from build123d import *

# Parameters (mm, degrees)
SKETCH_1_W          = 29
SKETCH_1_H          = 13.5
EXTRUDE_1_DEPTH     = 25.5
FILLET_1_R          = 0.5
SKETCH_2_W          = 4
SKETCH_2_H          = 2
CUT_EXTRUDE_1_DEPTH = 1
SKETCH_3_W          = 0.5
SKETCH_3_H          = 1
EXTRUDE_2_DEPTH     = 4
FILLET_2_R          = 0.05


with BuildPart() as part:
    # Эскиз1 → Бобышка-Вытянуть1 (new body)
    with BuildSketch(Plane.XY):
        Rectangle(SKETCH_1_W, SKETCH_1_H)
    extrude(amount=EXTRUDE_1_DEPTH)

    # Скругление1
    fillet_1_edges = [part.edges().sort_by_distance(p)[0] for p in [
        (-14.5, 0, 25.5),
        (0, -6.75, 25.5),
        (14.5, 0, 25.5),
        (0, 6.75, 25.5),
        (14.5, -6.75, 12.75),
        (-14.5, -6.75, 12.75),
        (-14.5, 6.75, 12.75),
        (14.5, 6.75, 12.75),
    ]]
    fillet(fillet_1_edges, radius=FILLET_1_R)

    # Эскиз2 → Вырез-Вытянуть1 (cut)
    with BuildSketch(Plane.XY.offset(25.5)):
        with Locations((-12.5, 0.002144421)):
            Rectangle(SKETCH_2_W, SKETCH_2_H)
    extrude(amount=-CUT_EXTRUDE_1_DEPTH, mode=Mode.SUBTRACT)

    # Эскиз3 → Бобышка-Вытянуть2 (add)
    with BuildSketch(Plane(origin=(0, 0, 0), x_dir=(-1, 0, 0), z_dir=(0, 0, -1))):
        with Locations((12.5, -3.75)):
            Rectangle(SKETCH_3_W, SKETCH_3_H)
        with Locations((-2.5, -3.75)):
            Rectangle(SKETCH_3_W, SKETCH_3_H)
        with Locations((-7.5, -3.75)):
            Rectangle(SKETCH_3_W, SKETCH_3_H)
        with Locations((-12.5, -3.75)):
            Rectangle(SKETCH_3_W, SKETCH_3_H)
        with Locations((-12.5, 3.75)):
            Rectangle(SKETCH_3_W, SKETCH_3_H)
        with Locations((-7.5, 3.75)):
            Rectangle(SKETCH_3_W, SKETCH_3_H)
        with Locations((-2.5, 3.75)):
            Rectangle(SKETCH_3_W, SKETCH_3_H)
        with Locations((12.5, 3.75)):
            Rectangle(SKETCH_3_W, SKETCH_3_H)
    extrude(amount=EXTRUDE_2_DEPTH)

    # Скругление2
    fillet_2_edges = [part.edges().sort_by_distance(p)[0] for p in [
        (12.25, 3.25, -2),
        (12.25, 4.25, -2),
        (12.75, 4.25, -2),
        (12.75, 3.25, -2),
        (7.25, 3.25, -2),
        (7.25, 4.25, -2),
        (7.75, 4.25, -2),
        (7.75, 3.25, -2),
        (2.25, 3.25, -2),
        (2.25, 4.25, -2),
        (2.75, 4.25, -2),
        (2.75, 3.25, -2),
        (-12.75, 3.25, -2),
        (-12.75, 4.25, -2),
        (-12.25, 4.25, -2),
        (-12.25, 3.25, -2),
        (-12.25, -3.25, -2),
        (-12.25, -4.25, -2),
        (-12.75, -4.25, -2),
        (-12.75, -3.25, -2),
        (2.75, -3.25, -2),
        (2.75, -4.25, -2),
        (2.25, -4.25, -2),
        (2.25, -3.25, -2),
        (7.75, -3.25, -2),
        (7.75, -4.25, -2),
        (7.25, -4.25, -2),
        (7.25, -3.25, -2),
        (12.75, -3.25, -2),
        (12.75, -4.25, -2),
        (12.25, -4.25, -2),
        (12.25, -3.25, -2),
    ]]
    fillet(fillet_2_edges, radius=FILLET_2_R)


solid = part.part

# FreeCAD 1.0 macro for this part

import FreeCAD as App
import Part
import Sketcher

V = App.Vector
Q = App.Units.Quantity


def edges_at(feature, points):
    """Names of the edges that pass closest to the given points."""
    edges = feature.Shape.Edges
    near = lambda p: min(range(len(edges)), key=lambda i: edges[i].distToShape(Part.Vertex(*p))[0])
    return sorted({f"Edge{near(p) + 1}" for p in points})

doc = App.newDocument("Part")
body = doc.addObject("PartDesign::Body", "Body")

# Sketch on XY plane
sketch1 = doc.addObject("Sketcher::SketchObject", "Sketch")
body.addObject(sketch1)
sketch1.AttachmentSupport = (doc.XY_Plane, [""])
sketch1.MapMode = "FlatFace"
sketch1.addGeometry([
    Part.LineSegment(V(-14, 7, 0), V(-14, -7, 0)),
    Part.LineSegment(V(-14, -7, 0), V(14, -7, 0)),
    Part.LineSegment(V(14, -7, 0), V(14, 7, 0)),
    Part.LineSegment(V(14, 7, 0), V(-14, 7, 0)),
], False)
sketch1.addConstraint([
    Sketcher.Constraint("Coincident", 0, 2, 1, 1),
    Sketcher.Constraint("Coincident", 1, 2, 2, 1),
    Sketcher.Constraint("Coincident", 2, 2, 3, 1),
    Sketcher.Constraint("Coincident", 3, 2, 0, 1),
    Sketcher.Constraint("Vertical", 0),
    Sketcher.Constraint("Horizontal", 1),
    Sketcher.Constraint("Vertical", 2),
    Sketcher.Constraint("Horizontal", 3),
    Sketcher.Constraint("Symmetric", 0, 2, 2, 2, -1, 1),
    Sketcher.Constraint("DistanceX", 1, 1, 1, 2, Q("29 mm")),
    Sketcher.Constraint("DistanceY", 0, 2, 0, 1, Q("13.5 mm")),
])
pad1 = doc.addObject("PartDesign::Pad", "Pad")
body.addObject(pad1)
pad1.Profile = sketch1
pad1.Length = 25.5
doc.recompute()

fillet = doc.addObject("PartDesign::Fillet", "Fillet")
body.addObject(fillet)
fillet.Base = (pad1, edges_at(pad1, [
    (-14.5, 0, 25.5),
    (0, -6.75, 25.5),
    (14.5, 0, 25.5),
    (0, 6.75, 25.5),
    (14.5, -6.75, 12.75),
    (-14.5, -6.75, 12.75),
    (-14.5, 6.75, 12.75),
    (14.5, 6.75, 12.75),
]))
fillet.Radius = 0.5

# Sketch on XY plane
sketch2 = doc.addObject("Sketcher::SketchObject", "Sketch001")
body.addObject(sketch2)
sketch2.AttachmentSupport = (doc.XY_Plane, [""])
sketch2.MapMode = "FlatFace"
sketch2.AttachmentOffset = App.Placement(V(0, 0, 25.5), App.Rotation())
sketch2.addGeometry([
    Part.LineSegment(V(-14.5, 1, 0), V(-14.5, -1, 0)),
    Part.LineSegment(V(-14.5, -1, 0), V(-10.5, -1, 0)),
    Part.LineSegment(V(-10.5, -1, 0), V(-10.5, 1, 0)),
    Part.LineSegment(V(-10.5, 1, 0), V(-14.5, 1, 0)),
], False)
sketch2.addConstraint([
    Sketcher.Constraint("Coincident", 0, 2, 1, 1),
    Sketcher.Constraint("Coincident", 1, 2, 2, 1),
    Sketcher.Constraint("Coincident", 2, 2, 3, 1),
    Sketcher.Constraint("Coincident", 3, 2, 0, 1),
    Sketcher.Constraint("Vertical", 0),
    Sketcher.Constraint("Horizontal", 1),
    Sketcher.Constraint("Vertical", 2),
    Sketcher.Constraint("Horizontal", 3),
    Sketcher.Constraint("DistanceX", 1, 1, 1, 2, Q("4 mm")),
    Sketcher.Constraint("DistanceY", 0, 2, 0, 1, Q("2 mm")),
    Sketcher.Constraint("DistanceX", 0, 2, -1, 1, Q("14.5 mm")),
    Sketcher.Constraint("DistanceY", 0, 2, -1, 1, Q("0.997856 mm")),
])
pocket1 = doc.addObject("PartDesign::Pocket", "Pocket")
body.addObject(pocket1)
pocket1.Profile = sketch2
pocket1.Length = 1

# Sketch on XY plane
sketch3 = doc.addObject("Sketcher::SketchObject", "Sketch002")
body.addObject(sketch3)
sketch3.AttachmentSupport = (doc.XY_Plane, [""])
sketch3.MapMode = "FlatFace"
sketch3.addGeometry([
    Part.LineSegment(V(-12.2, -3.2, 0), V(-12.2, -4.2, 0)),  # 0
    Part.LineSegment(V(-12.2, -4.2, 0), V(-12.8, -4.2, 0)),  # 1
    Part.LineSegment(V(-12.8, -4.2, 0), V(-12.8, -3.2, 0)),  # 2
    Part.LineSegment(V(-12.8, -3.2, 0), V(-12.2, -3.2, 0)),  # 3
    Part.LineSegment(V(2.8, -3.2, 0), V(2.8, -4.2, 0)),  # 4
    Part.LineSegment(V(2.8, -4.2, 0), V(2.2, -4.2, 0)),  # 5
    Part.LineSegment(V(2.2, -4.2, 0), V(2.2, -3.2, 0)),  # 6
    Part.LineSegment(V(2.2, -3.2, 0), V(2.8, -3.2, 0)),  # 7
    Part.LineSegment(V(7.8, -3.2, 0), V(7.8, -4.2, 0)),  # 8
    Part.LineSegment(V(7.8, -4.2, 0), V(7.2, -4.2, 0)),  # 9
    Part.LineSegment(V(7.2, -4.2, 0), V(7.2, -3.2, 0)),  # 10
    Part.LineSegment(V(7.2, -3.2, 0), V(7.8, -3.2, 0)),  # 11
    Part.LineSegment(V(12.8, -3.2, 0), V(12.8, -4.2, 0)),  # 12
    Part.LineSegment(V(12.8, -4.2, 0), V(12.2, -4.2, 0)),  # 13
    Part.LineSegment(V(12.2, -4.2, 0), V(12.2, -3.2, 0)),  # 14
    Part.LineSegment(V(12.2, -3.2, 0), V(12.8, -3.2, 0)),  # 15
    Part.LineSegment(V(12.8, 4.2, 0), V(12.8, 3.2, 0)),  # 16
    Part.LineSegment(V(12.8, 3.2, 0), V(12.2, 3.2, 0)),  # 17
    Part.LineSegment(V(12.2, 3.2, 0), V(12.2, 4.2, 0)),  # 18
    Part.LineSegment(V(12.2, 4.2, 0), V(12.8, 4.2, 0)),  # 19
    Part.LineSegment(V(7.8, 4.2, 0), V(7.8, 3.2, 0)),  # 20
    Part.LineSegment(V(7.8, 3.2, 0), V(7.2, 3.2, 0)),  # 21
    Part.LineSegment(V(7.2, 3.2, 0), V(7.2, 4.2, 0)),  # 22
    Part.LineSegment(V(7.2, 4.2, 0), V(7.8, 4.2, 0)),  # 23
    Part.LineSegment(V(2.8, 4.2, 0), V(2.8, 3.2, 0)),  # 24
    Part.LineSegment(V(2.8, 3.2, 0), V(2.2, 3.2, 0)),  # 25
    Part.LineSegment(V(2.2, 3.2, 0), V(2.2, 4.2, 0)),  # 26
    Part.LineSegment(V(2.2, 4.2, 0), V(2.8, 4.2, 0)),  # 27
    Part.LineSegment(V(-12.2, 4.2, 0), V(-12.2, 3.2, 0)),  # 28
    Part.LineSegment(V(-12.2, 3.2, 0), V(-12.8, 3.2, 0)),  # 29
    Part.LineSegment(V(-12.8, 3.2, 0), V(-12.8, 4.2, 0)),  # 30
    Part.LineSegment(V(-12.8, 4.2, 0), V(-12.2, 4.2, 0)),  # 31
], False)
sketch3.addConstraint([
    Sketcher.Constraint("Coincident", 0, 2, 1, 1),
    Sketcher.Constraint("Coincident", 1, 2, 2, 1),
    Sketcher.Constraint("Coincident", 2, 2, 3, 1),
    Sketcher.Constraint("Coincident", 3, 2, 0, 1),
    Sketcher.Constraint("Coincident", 4, 2, 5, 1),
    Sketcher.Constraint("Coincident", 5, 2, 6, 1),
    Sketcher.Constraint("Coincident", 6, 2, 7, 1),
    Sketcher.Constraint("Coincident", 7, 2, 4, 1),
    Sketcher.Constraint("Coincident", 8, 2, 9, 1),
    Sketcher.Constraint("Coincident", 9, 2, 10, 1),
    Sketcher.Constraint("Coincident", 10, 2, 11, 1),
    Sketcher.Constraint("Coincident", 11, 2, 8, 1),
    Sketcher.Constraint("Coincident", 12, 2, 13, 1),
    Sketcher.Constraint("Coincident", 13, 2, 14, 1),
    Sketcher.Constraint("Coincident", 14, 2, 15, 1),
    Sketcher.Constraint("Coincident", 15, 2, 12, 1),
    Sketcher.Constraint("Coincident", 16, 2, 17, 1),
    Sketcher.Constraint("Coincident", 17, 2, 18, 1),
    Sketcher.Constraint("Coincident", 18, 2, 19, 1),
    Sketcher.Constraint("Coincident", 19, 2, 16, 1),
    Sketcher.Constraint("Coincident", 20, 2, 21, 1),
    Sketcher.Constraint("Coincident", 21, 2, 22, 1),
    Sketcher.Constraint("Coincident", 22, 2, 23, 1),
    Sketcher.Constraint("Coincident", 23, 2, 20, 1),
    Sketcher.Constraint("Coincident", 24, 2, 25, 1),
    Sketcher.Constraint("Coincident", 25, 2, 26, 1),
    Sketcher.Constraint("Coincident", 26, 2, 27, 1),
    Sketcher.Constraint("Coincident", 27, 2, 24, 1),
    Sketcher.Constraint("Coincident", 28, 2, 29, 1),
    Sketcher.Constraint("Coincident", 29, 2, 30, 1),
    Sketcher.Constraint("Coincident", 30, 2, 31, 1),
    Sketcher.Constraint("Coincident", 31, 2, 28, 1),
    Sketcher.Constraint("Vertical", 0),
    Sketcher.Constraint("Horizontal", 1),
    Sketcher.Constraint("Vertical", 2),
    Sketcher.Constraint("Horizontal", 3),
    Sketcher.Constraint("Vertical", 4),
    Sketcher.Constraint("Horizontal", 5),
    Sketcher.Constraint("Vertical", 6),
    Sketcher.Constraint("Horizontal", 7),
    Sketcher.Constraint("Vertical", 8),
    Sketcher.Constraint("Horizontal", 9),
    Sketcher.Constraint("Vertical", 10),
    Sketcher.Constraint("Horizontal", 11),
    Sketcher.Constraint("Vertical", 12),
    Sketcher.Constraint("Horizontal", 13),
    Sketcher.Constraint("Vertical", 14),
    Sketcher.Constraint("Horizontal", 15),
    Sketcher.Constraint("Vertical", 16),
    Sketcher.Constraint("Horizontal", 17),
    Sketcher.Constraint("Vertical", 18),
    Sketcher.Constraint("Horizontal", 19),
    Sketcher.Constraint("Vertical", 20),
    Sketcher.Constraint("Horizontal", 21),
    Sketcher.Constraint("Vertical", 22),
    Sketcher.Constraint("Horizontal", 23),
    Sketcher.Constraint("Vertical", 24),
    Sketcher.Constraint("Horizontal", 25),
    Sketcher.Constraint("Vertical", 26),
    Sketcher.Constraint("Horizontal", 27),
    Sketcher.Constraint("Vertical", 28),
    Sketcher.Constraint("Horizontal", 29),
    Sketcher.Constraint("Vertical", 30),
    Sketcher.Constraint("Horizontal", 31),
    Sketcher.Constraint("Symmetric", 2, 2, 16, 2, -1, 1),
    Sketcher.Constraint("Symmetric", 0, 2, 18, 2, -1, 1),
    Sketcher.Constraint("Symmetric", 14, 2, 28, 2, -1, 1),
    Sketcher.Constraint("Symmetric", 12, 2, 30, 2, -1, 1),
    Sketcher.Constraint("Symmetric", 1, 2, 12, 2, -2),
    Sketcher.Constraint("Symmetric", 3, 2, 14, 2, -2),
    Sketcher.Constraint("Symmetric", 11, 2, 20, 2, -1),
    Sketcher.Constraint("Symmetric", 9, 2, 22, 2, -1),
    Sketcher.Constraint("Symmetric", 7, 2, 24, 2, -1),
    Sketcher.Constraint("Symmetric", 5, 2, 26, 2, -1),
    Sketcher.Constraint("Horizontal", 1, 2, 4, 2),
    Sketcher.Constraint("Horizontal", 3, 2, 6, 2),
    Sketcher.Constraint("Horizontal", 5, 2, 8, 2),
    Sketcher.Constraint("Horizontal", 7, 2, 10, 2),
    Sketcher.Constraint("Equal", 3, 5),
    Sketcher.Constraint("Equal", 7, 9),
    Sketcher.Constraint("DistanceY", 0, 2, 0, 1, Q("1 mm")),
    Sketcher.Constraint("DistanceX", 1, 2, 1, 1, Q("0.5 mm")),
    Sketcher.Constraint("DistanceX", 0, 2, 4, 2, Q("15 mm")),
    Sketcher.Constraint("DistanceX", 4, 2, 8, 2, Q("5 mm")),
    Sketcher.Constraint("DistanceX", 8, 2, 12, 2, Q("5 mm")),
    Sketcher.Constraint("DistanceY", 15, 2, 16, 2, Q("6.5 mm")),
])
pad2 = doc.addObject("PartDesign::Pad", "Pad001")
body.addObject(pad2)
pad2.Profile = sketch3
pad2.Length = 4
pad2.Reversed = True
doc.recompute()

fillet2 = doc.addObject("PartDesign::Fillet", "Fillet001")
body.addObject(fillet2)
fillet2.Base = (pad2, edges_at(pad2, [
    (12.25, 3.25, -2),
    (12.25, 4.25, -2),
    (12.75, 4.25, -2),
    (12.75, 3.25, -2),
    (7.25, 3.25, -2),
    (7.25, 4.25, -2),
    (7.75, 4.25, -2),
    (7.75, 3.25, -2),
    (2.25, 3.25, -2),
    (2.25, 4.25, -2),
    (2.75, 4.25, -2),
    (2.75, 3.25, -2),
    (-12.75, 3.25, -2),
    (-12.75, 4.25, -2),
    (-12.25, 4.25, -2),
    (-12.25, 3.25, -2),
    (-12.25, -3.25, -2),
    (-12.25, -4.25, -2),
    (-12.75, -4.25, -2),
    (-12.75, -3.25, -2),
    (2.75, -3.25, -2),
    (2.75, -4.25, -2),
    (2.25, -4.25, -2),
    (2.25, -3.25, -2),
    (7.75, -3.25, -2),
    (7.75, -4.25, -2),
    (7.25, -4.25, -2),
    (7.25, -3.25, -2),
    (12.75, -3.25, -2),
    (12.75, -4.25, -2),
    (12.25, -4.25, -2),
    (12.25, -3.25, -2),
]))
fillet2.Radius = 0.05

doc.recompute()
